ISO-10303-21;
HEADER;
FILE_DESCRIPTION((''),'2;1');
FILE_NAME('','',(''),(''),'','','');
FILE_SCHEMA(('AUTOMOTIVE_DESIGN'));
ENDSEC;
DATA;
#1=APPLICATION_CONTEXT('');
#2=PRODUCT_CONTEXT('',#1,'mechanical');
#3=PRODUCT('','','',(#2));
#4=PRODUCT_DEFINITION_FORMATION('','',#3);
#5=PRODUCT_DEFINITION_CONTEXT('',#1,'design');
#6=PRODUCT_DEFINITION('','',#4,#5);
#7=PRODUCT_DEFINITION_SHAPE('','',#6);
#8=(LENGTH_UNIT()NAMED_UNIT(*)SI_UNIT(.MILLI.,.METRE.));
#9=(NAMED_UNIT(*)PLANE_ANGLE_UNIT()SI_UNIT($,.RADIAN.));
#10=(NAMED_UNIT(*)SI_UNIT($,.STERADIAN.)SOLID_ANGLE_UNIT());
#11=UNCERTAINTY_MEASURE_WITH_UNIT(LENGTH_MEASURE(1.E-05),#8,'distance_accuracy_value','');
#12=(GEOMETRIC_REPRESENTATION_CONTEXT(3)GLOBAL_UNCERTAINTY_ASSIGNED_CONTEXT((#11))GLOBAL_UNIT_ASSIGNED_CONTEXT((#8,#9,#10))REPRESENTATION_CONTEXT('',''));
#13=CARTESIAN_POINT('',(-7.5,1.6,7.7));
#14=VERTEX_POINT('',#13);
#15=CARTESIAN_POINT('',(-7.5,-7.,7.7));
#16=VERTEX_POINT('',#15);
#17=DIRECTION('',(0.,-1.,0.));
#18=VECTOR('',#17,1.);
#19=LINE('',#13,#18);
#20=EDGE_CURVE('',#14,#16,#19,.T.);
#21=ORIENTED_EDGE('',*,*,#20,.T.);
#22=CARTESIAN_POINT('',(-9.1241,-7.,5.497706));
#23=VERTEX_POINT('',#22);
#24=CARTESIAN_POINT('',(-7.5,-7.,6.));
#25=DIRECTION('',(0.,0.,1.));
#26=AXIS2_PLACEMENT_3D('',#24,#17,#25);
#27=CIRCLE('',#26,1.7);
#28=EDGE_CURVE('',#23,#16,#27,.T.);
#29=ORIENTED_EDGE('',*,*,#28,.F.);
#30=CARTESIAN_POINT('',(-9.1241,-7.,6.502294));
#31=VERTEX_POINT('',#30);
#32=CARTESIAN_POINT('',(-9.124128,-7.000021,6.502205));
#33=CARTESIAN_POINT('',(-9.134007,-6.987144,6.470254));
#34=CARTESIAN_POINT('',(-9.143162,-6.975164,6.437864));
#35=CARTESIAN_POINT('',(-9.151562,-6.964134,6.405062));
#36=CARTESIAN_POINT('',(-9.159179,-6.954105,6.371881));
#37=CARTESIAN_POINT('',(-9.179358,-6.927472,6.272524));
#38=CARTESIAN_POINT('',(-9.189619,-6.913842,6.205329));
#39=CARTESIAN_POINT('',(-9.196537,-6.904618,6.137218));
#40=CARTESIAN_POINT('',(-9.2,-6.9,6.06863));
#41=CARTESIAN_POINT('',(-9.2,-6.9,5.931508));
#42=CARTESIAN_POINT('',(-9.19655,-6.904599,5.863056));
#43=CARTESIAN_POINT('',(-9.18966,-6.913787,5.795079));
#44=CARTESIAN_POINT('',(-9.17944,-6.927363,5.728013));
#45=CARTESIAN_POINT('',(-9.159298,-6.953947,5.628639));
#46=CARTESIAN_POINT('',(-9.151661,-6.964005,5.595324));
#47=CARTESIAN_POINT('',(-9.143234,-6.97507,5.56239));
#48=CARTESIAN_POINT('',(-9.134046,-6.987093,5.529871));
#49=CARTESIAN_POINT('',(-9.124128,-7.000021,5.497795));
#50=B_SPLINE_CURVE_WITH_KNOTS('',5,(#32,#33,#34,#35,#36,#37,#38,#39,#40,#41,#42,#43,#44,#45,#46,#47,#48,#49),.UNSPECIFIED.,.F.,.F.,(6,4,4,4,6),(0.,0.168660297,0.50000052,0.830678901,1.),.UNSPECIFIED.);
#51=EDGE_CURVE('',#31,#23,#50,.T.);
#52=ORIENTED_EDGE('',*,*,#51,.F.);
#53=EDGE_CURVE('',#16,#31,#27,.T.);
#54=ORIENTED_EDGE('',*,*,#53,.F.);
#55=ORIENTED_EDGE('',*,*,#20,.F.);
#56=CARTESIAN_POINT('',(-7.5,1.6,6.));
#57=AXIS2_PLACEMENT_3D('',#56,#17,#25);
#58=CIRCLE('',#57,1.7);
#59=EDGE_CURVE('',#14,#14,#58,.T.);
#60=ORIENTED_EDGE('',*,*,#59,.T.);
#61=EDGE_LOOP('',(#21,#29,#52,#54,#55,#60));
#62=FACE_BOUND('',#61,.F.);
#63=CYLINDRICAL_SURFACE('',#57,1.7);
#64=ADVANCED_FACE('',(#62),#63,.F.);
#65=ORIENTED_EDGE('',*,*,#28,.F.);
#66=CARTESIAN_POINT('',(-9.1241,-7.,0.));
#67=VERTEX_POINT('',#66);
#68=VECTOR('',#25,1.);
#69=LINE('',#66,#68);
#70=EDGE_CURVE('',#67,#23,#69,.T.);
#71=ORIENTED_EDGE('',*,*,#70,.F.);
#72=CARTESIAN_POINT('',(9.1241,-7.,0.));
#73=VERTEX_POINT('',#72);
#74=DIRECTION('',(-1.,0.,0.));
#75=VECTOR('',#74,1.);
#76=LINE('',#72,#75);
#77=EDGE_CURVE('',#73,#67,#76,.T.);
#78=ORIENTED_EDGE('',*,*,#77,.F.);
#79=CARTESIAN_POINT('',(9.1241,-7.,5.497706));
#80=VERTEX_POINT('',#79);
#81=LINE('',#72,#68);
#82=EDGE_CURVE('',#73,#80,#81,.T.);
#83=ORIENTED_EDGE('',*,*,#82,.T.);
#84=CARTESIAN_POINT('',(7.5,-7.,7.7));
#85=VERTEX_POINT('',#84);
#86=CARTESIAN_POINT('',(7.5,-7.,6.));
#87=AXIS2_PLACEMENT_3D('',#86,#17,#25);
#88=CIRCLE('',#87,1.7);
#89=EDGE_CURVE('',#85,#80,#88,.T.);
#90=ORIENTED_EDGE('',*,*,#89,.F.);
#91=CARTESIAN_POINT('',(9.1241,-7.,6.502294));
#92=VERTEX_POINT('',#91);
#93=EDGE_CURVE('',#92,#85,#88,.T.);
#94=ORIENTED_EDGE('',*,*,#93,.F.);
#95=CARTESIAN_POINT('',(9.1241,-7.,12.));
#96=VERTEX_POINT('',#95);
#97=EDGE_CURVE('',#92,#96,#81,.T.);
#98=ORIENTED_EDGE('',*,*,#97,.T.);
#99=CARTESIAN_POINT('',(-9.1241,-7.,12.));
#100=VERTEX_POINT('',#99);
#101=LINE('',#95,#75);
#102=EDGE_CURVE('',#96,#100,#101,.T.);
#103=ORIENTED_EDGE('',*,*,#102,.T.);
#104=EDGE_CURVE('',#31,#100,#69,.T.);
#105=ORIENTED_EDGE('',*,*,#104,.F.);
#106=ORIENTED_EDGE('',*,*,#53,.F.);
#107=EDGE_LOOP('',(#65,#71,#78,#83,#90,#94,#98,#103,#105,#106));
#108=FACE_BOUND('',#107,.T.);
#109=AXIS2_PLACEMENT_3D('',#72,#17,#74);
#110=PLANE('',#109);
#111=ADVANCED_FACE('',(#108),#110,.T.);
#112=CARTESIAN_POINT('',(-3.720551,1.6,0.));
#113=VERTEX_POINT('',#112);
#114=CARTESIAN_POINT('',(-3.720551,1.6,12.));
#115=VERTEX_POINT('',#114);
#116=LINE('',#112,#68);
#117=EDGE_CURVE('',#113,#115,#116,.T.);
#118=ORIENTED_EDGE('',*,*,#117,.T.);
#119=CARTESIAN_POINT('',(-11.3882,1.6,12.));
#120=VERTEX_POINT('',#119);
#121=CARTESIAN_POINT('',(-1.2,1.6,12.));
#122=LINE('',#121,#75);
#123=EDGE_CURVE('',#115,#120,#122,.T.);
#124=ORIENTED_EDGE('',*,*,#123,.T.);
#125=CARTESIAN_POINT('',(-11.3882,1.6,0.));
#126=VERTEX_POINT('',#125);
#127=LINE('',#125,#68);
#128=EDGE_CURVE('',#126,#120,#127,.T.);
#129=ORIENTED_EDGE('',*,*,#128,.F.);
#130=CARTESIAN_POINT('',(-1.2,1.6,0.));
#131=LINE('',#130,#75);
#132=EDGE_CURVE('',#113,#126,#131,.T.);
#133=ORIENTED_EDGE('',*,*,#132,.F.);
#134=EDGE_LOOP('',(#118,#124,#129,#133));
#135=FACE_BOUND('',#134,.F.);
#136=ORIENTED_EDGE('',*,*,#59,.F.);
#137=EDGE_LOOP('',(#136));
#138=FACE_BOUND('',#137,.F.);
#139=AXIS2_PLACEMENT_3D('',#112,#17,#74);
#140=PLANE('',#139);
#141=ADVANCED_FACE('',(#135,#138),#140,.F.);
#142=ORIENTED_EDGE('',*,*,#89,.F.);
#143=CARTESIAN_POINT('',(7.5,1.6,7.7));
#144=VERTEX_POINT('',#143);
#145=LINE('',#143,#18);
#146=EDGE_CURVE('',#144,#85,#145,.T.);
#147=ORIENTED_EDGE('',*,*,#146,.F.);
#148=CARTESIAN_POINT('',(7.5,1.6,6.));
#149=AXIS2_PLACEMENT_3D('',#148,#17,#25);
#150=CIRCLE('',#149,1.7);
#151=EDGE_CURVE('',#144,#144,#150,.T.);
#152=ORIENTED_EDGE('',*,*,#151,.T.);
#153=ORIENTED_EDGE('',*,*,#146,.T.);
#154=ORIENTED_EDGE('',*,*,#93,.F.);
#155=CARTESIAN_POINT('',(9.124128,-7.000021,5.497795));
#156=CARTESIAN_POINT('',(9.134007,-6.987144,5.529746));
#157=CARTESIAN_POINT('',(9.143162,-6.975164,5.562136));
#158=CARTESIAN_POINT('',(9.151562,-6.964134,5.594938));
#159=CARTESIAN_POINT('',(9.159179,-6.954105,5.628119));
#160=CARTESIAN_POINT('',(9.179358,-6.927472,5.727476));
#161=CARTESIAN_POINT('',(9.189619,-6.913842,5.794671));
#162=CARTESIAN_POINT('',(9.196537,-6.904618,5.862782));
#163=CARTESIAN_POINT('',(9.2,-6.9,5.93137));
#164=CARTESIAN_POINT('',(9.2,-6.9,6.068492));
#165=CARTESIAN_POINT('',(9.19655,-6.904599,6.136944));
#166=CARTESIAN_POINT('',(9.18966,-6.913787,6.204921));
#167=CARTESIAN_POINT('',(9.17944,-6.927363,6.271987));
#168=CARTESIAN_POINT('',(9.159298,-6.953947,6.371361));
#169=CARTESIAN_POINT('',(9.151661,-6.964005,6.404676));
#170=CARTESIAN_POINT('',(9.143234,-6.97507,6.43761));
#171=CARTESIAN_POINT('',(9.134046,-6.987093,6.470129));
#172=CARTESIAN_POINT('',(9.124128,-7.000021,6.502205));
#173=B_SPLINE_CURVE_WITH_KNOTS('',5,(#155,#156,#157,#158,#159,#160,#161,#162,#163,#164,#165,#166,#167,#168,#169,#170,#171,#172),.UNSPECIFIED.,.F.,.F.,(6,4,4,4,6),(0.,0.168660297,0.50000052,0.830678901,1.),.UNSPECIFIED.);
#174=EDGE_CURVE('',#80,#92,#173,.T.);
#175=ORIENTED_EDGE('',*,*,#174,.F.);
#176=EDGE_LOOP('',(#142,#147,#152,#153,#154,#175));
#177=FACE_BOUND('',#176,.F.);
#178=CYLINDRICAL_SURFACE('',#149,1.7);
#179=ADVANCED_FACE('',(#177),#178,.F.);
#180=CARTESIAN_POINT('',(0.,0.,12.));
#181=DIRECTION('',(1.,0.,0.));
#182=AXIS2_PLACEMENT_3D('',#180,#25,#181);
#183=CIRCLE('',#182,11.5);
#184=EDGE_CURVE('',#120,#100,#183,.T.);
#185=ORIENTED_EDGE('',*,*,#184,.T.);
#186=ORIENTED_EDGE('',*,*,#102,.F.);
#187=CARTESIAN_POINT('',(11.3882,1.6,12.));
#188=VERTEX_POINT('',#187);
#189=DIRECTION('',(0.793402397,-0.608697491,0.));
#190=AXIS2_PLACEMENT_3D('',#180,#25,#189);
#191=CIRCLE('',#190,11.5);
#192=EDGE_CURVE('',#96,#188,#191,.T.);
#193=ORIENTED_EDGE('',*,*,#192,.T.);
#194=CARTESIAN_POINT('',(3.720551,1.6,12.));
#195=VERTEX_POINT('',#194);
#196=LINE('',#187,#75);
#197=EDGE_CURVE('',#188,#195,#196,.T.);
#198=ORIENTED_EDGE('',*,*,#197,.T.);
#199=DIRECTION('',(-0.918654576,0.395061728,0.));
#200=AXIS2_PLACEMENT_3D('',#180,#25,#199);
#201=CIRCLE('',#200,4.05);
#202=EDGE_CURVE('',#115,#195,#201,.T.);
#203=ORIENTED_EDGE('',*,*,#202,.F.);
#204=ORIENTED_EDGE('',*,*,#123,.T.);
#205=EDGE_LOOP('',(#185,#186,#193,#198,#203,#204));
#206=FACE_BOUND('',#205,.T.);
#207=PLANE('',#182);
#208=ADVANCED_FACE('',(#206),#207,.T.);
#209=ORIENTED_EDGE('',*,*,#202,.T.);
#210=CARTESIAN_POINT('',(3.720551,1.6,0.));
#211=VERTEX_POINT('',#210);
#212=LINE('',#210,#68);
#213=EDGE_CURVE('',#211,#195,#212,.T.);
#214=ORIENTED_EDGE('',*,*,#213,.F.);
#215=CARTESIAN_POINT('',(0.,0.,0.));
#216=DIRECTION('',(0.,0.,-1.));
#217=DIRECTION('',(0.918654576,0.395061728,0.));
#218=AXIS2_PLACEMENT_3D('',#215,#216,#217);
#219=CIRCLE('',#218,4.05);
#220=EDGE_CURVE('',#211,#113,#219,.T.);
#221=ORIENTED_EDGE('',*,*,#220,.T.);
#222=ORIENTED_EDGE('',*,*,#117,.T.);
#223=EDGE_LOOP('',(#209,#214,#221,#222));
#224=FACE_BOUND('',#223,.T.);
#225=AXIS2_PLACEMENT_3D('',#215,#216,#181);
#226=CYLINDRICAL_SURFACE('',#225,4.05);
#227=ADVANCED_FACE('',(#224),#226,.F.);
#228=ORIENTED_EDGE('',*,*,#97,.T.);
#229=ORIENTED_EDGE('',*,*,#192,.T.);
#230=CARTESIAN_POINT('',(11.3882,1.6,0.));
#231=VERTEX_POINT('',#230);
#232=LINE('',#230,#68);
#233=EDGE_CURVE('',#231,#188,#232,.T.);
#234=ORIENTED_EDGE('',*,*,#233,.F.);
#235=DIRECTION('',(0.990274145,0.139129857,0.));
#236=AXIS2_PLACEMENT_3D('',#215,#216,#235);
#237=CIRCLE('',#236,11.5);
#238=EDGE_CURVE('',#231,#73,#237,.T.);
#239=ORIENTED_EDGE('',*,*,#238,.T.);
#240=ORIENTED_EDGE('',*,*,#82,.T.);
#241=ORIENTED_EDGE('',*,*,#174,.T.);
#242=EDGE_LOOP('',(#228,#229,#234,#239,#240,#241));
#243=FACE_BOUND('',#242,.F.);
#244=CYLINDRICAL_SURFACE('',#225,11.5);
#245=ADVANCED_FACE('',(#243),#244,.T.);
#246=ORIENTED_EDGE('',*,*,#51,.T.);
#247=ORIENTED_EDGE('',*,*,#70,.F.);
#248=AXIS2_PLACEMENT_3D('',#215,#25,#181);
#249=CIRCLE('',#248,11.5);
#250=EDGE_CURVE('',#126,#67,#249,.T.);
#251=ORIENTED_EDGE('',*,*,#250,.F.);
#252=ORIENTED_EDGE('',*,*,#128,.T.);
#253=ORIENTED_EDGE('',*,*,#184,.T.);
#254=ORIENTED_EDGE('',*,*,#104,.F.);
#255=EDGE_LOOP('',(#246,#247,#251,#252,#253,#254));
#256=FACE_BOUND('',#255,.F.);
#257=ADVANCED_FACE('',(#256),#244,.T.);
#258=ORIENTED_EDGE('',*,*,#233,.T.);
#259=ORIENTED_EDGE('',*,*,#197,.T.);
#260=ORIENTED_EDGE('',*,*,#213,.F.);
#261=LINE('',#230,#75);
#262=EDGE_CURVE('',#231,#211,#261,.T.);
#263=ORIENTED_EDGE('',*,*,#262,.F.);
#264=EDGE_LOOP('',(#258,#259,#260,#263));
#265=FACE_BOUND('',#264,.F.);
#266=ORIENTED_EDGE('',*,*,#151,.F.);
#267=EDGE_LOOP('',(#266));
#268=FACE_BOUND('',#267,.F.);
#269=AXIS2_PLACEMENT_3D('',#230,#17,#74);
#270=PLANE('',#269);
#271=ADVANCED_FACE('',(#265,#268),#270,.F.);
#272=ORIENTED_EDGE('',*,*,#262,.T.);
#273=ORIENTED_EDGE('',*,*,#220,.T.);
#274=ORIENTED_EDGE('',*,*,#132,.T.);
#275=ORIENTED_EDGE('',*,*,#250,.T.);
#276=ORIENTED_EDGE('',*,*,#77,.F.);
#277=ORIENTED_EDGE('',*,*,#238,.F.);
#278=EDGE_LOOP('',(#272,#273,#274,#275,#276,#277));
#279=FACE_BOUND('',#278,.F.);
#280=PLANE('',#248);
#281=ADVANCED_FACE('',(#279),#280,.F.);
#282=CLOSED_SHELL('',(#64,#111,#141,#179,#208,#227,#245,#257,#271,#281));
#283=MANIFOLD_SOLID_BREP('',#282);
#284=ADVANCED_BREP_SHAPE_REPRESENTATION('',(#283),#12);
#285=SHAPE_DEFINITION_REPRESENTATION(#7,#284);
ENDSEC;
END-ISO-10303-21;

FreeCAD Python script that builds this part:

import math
import FreeCAD as App
import Part
import Sketcher
from FreeCAD import Vector
Q = App.Units.Quantity

doc = App.newDocument("Part")
body = doc.addObject("PartDesign::Body", "Body")

# Sketch on XY plane
sketch1 = doc.addObject("Sketcher::SketchObject", "Sketch")
body.addObject(sketch1)
sketch1.AttachmentSupport = (doc.XY_Plane, [""])
sketch1.MapMode = "FlatFace"
sketch1.addGeometry(Part.ArcOfCircle(Part.Circle(Vector(0, 0, 0), Vector(0, 0, 1), 4), math.radians(157), math.radians(383)), False)
sketch1.addGeometry(Part.LineSegment(Vector(-3.7, 1.6, 0), Vector(-11.4, 1.6, 0)), False)
sketch1.addGeometry(Part.ArcOfCircle(Part.Circle(Vector(0, 0, 0), Vector(0, 0, 1), 11.5), math.radians(172), math.radians(217)), False)
sketch1.addGeometry(Part.LineSegment(Vector(-9.1, -7, 0), Vector(9.1, -7, 0)), False)
sketch1.addGeometry(Part.ArcOfCircle(Part.Circle(Vector(0, 0, 0), Vector(0, 0, 1), 11.5), math.radians(-37), math.radians(8)), False)
sketch1.addGeometry(Part.LineSegment(Vector(11.4, 1.6, 0), Vector(3.7, 1.6, 0)), False)
sketch1.addConstraint(Sketcher.Constraint("Coincident", 0, 1, 1, 1))
sketch1.addConstraint(Sketcher.Constraint("Coincident", 1, 2, 2, 1))
sketch1.addConstraint(Sketcher.Constraint("Coincident", 2, 2, 3, 1))
sketch1.addConstraint(Sketcher.Constraint("Coincident", 3, 2, 4, 1))
sketch1.addConstraint(Sketcher.Constraint("Coincident", 4, 2, 5, 1))
sketch1.addConstraint(Sketcher.Constraint("Coincident", 5, 2, 0, 2))
sketch1.addConstraint(Sketcher.Constraint("Horizontal", 1))
sketch1.addConstraint(Sketcher.Constraint("Horizontal", 3))
sketch1.addConstraint(Sketcher.Constraint("Horizontal", 5))
sketch1.addConstraint(Sketcher.Constraint("Coincident", 0, 3, -1, 1))
sketch1.addConstraint(Sketcher.Constraint("Coincident", 2, 3, -1, 1))
sketch1.addConstraint(Sketcher.Constraint("Coincident", 4, 3, -1, 1))
sketch1.addConstraint(Sketcher.Constraint("Equal", 2, 4))
sketch1.addConstraint(Sketcher.Constraint("Horizontal", 1, 2, 4, 2))
sketch1.addConstraint(Sketcher.Constraint("Radius", 2, Q("11.5 mm")))
sketch1.addConstraint(Sketcher.Constraint("Radius", 0, Q("4.05 mm")))
sketch1.addConstraint(Sketcher.Constraint("DistanceY", 2, 2, -1, 1, Q("7 mm")))
sketch1.addConstraint(Sketcher.Constraint("DistanceY", -1, 1, 0, 1, Q("1.6 mm")))
pad1 = doc.addObject("PartDesign::Pad", "Pad")
body.addObject(pad1)
pad1.Profile = sketch1
pad1.Length = 12

# Sketch on XZ plane
sketch2 = doc.addObject("Sketcher::SketchObject", "Sketch001")
body.addObject(sketch2)
sketch2.AttachmentSupport = (doc.XZ_Plane, [""])
sketch2.MapMode = "FlatFace"
sketch2.AttachmentOffset = App.Placement(Vector(0, 0, -1.6), App.Rotation())
sketch2.addGeometry(Part.Circle(Vector(-7.5, 6, 0), Vector(0, 0, 1), 1.7), False)
sketch2.addGeometry(Part.Circle(Vector(7.5, 6, 0), Vector(0, 0, 1), 1.7), False)
sketch2.addConstraint(Sketcher.Constraint("Equal", 0, 1))
sketch2.addConstraint(Sketcher.Constraint("Symmetric", 0, 3, 1, 3, -2))
sketch2.addConstraint(Sketcher.Constraint("Diameter", 0, Q("3.4 mm")))
sketch2.addConstraint(Sketcher.Constraint("DistanceY", -1, 1, 0, 3, Q("6 mm")))
sketch2.addConstraint(Sketcher.Constraint("DistanceX", 0, 3, 1, 3, Q("15 mm")))
doc.recompute()
hole = doc.addObject("PartDesign::Hole", "Hole")
body.addObject(hole)
hole.Profile = sketch2
hole.ThreadType = "None"
hole.Diameter = 3.4
hole.DepthType = "ThroughAll"
hole.Reversed = True

doc.recompute()
